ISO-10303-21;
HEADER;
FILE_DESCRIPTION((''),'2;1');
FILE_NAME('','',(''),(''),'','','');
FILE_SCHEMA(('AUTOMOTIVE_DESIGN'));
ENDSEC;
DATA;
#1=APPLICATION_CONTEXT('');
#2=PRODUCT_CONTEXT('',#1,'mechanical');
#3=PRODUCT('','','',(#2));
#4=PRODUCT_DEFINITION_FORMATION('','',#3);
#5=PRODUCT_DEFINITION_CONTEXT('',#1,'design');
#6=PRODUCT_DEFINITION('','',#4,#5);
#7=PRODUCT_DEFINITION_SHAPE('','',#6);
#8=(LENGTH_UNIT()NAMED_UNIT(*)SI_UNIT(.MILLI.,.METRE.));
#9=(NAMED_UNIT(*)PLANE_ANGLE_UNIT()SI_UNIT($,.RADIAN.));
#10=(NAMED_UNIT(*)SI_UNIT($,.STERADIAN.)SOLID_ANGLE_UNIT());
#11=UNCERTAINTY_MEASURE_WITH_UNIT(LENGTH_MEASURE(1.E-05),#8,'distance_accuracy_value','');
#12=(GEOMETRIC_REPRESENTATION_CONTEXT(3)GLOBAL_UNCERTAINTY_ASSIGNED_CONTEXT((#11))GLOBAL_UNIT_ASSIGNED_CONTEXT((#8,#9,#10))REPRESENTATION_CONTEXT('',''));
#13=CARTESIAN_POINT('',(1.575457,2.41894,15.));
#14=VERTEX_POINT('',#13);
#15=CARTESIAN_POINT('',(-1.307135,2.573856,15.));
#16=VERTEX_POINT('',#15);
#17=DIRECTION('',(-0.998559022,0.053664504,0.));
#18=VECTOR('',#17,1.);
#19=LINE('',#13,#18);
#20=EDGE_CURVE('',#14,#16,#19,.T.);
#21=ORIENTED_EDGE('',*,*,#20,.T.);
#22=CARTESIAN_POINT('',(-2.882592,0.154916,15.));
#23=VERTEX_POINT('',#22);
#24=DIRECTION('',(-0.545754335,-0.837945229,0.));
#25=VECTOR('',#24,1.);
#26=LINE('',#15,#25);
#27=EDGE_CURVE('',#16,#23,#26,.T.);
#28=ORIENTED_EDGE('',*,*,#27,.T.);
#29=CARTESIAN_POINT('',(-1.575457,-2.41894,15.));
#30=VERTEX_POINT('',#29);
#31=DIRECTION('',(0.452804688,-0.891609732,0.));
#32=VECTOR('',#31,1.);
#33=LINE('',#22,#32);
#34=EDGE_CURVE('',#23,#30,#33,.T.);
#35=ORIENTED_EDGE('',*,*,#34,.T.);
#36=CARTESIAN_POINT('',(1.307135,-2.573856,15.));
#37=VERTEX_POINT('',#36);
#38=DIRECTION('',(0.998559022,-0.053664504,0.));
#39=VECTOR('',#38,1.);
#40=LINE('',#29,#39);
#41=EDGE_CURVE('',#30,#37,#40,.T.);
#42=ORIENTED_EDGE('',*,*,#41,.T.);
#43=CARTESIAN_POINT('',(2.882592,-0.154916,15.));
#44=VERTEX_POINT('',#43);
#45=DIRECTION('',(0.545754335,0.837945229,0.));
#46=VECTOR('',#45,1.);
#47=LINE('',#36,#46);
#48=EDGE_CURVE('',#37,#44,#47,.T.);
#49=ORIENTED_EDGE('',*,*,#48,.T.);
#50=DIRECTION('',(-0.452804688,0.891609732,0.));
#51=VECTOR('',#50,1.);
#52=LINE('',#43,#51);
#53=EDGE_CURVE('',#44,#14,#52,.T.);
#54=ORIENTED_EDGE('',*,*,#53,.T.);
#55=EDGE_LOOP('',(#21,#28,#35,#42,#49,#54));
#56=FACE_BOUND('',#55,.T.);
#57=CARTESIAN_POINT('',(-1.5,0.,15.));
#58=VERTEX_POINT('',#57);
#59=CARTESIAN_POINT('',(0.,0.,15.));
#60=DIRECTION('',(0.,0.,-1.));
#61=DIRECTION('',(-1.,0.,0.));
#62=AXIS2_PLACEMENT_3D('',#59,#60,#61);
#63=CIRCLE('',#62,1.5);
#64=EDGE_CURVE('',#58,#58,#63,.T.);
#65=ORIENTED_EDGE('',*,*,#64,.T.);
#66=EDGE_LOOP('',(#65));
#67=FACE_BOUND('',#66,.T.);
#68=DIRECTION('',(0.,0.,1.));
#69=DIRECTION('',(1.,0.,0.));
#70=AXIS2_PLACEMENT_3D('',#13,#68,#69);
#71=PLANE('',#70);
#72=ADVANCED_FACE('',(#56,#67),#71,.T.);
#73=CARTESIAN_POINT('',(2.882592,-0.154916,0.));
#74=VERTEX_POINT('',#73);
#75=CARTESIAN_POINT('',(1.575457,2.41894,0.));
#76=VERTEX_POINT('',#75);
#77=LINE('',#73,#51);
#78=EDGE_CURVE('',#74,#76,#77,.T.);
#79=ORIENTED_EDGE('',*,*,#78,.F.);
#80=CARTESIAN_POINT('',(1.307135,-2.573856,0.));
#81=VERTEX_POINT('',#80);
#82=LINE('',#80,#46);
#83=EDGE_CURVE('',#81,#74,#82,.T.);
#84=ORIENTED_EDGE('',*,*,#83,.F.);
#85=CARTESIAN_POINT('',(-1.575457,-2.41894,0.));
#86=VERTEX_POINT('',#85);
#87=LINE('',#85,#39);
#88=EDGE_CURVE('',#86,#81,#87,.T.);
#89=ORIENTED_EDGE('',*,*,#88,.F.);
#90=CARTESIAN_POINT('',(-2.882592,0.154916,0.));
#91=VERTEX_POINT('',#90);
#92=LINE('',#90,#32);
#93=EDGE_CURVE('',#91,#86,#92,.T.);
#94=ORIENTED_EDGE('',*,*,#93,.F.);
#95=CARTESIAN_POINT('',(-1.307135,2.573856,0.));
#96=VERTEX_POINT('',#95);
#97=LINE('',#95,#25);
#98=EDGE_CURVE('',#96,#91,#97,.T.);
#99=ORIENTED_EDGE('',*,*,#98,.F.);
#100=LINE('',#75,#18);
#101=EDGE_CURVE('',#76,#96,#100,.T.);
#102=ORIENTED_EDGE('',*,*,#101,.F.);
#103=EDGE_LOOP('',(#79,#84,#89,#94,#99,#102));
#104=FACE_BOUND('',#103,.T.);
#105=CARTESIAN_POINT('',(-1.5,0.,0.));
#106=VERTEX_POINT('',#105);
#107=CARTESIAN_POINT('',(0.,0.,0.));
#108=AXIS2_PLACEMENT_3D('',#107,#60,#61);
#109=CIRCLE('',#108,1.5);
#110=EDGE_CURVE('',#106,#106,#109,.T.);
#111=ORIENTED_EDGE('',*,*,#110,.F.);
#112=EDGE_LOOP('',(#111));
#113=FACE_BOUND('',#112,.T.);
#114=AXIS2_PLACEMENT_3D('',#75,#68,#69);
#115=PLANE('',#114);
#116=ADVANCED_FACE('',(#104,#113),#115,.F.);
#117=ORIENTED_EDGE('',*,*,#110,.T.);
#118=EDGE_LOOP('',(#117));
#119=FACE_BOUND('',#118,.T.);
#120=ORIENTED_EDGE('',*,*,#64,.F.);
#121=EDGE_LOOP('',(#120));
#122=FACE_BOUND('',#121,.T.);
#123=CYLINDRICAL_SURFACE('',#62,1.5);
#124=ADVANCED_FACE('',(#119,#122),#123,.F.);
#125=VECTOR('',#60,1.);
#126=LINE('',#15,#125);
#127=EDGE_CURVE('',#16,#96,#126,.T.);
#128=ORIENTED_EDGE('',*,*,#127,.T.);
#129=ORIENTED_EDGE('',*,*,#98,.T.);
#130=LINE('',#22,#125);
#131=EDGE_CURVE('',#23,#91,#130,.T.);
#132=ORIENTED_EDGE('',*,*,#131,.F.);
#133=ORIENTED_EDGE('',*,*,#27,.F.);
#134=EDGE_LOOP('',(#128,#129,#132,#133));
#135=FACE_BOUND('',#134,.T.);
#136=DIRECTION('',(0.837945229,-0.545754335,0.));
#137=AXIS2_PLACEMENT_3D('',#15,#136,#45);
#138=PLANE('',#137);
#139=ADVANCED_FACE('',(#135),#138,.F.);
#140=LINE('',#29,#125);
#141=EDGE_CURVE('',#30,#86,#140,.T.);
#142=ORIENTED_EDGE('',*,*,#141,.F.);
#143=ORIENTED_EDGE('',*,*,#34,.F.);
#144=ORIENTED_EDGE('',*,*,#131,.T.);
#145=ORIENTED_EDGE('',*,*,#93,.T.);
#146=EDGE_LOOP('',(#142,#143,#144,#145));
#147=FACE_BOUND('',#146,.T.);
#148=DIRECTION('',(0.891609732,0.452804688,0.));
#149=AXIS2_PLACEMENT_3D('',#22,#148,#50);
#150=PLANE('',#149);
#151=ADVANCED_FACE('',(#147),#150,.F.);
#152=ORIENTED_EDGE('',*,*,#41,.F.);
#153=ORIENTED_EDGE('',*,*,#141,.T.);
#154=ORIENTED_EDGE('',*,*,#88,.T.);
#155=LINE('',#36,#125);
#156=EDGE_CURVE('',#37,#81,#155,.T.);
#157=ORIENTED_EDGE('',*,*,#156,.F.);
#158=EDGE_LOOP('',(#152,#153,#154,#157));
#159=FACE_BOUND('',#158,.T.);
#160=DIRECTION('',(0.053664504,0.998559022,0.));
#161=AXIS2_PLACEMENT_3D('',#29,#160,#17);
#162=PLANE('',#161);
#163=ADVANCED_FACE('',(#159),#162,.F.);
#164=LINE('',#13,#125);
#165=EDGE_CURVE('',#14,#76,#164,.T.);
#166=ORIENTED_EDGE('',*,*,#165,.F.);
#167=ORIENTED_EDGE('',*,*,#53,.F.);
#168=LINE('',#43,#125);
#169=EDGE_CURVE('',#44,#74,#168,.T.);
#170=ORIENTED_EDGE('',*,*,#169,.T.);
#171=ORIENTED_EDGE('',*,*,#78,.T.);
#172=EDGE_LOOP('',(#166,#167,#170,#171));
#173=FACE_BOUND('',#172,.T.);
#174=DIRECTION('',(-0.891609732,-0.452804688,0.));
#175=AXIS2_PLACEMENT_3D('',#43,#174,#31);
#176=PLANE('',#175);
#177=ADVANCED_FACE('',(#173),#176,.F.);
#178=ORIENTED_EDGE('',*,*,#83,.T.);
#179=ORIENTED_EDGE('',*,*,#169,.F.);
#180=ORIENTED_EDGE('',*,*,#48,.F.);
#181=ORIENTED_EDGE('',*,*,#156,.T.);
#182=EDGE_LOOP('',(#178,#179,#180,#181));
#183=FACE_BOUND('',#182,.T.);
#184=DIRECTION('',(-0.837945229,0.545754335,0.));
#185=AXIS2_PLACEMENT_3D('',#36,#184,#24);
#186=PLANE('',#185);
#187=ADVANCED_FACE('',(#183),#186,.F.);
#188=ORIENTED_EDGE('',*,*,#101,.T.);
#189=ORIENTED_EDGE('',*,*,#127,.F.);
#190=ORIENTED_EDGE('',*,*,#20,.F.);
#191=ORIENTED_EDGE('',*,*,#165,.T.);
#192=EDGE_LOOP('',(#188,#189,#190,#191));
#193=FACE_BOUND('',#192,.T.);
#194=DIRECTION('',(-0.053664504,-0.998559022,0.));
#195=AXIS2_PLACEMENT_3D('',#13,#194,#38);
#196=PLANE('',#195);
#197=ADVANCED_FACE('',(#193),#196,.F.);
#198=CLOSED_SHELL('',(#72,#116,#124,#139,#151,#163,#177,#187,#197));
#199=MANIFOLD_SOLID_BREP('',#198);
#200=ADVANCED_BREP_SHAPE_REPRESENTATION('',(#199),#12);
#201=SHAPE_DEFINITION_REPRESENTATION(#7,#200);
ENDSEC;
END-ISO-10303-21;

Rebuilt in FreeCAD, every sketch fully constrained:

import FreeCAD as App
import Part
import Sketcher
from FreeCAD import Vector

doc = App.newDocument("Part")
params = doc.addObject("Spreadsheet::Sheet", "Params")
for row, (alias, value) in enumerate([
    ("pad1_length", "15 mm"),
    ("sketch2_diameter", "3 mm"),
], start=1):
    params.set(f"A{row}", alias)
    params.set(f"B{row}", "=" + value)
    params.setAlias(f"B{row}", alias)

body = doc.addObject("PartDesign::Body", "Body")

sketch1 = body.newObject("Sketcher::SketchObject", "Sketch")
sketch1.AttachmentSupport = (doc.getObject("XY_Plane"), [""])
sketch1.MapMode = "FlatFace"
sketch1.addGeometry(Part.LineSegment(Vector(1.575457, 2.41894, 0), Vector(-1.307135, 2.573856, 0)), False)
sketch1.addGeometry(Part.LineSegment(Vector(-1.307135, 2.573856, 0), Vector(-2.882592, 0.154916, 0)), False)
sketch1.addGeometry(Part.LineSegment(Vector(-2.882592, 0.154916, 0), Vector(-1.575457, -2.41894, 0)), False)
sketch1.addGeometry(Part.LineSegment(Vector(-1.575457, -2.41894, 0), Vector(1.307135, -2.573856, 0)), False)
sketch1.addGeometry(Part.LineSegment(Vector(1.307135, -2.573856, 0), Vector(2.882592, -0.154916, 0)), False)
sketch1.addGeometry(Part.LineSegment(Vector(2.882592, -0.154916, 0), Vector(1.575457, 2.41894, 0)), False)
sketch1.addConstraint(Sketcher.Constraint("Coincident", 0, 2, 1, 1))
sketch1.addConstraint(Sketcher.Constraint("Coincident", 1, 2, 2, 1))
sketch1.addConstraint(Sketcher.Constraint("Coincident", 2, 2, 3, 1))
sketch1.addConstraint(Sketcher.Constraint("Coincident", 3, 2, 4, 1))
sketch1.addConstraint(Sketcher.Constraint("Coincident", 4, 2, 5, 1))
sketch1.addConstraint(Sketcher.Constraint("Coincident", 5, 2, 0, 1))
sketch1.addConstraint(Sketcher.Constraint("Symmetric", 0, 2, 3, 2, -1, 1))
sketch1.addConstraint(Sketcher.Constraint("Symmetric", 1, 2, 4, 2, -1, 1))
sketch1.addConstraint(Sketcher.Constraint("Symmetric", 2, 2, 5, 2, -1, 1))
sketch1.addConstraint(Sketcher.Constraint("Equal", 0, 1))
sketch1.addConstraint(Sketcher.Constraint("Equal", 1, 2))
sketch1.addConstraint(Sketcher.Constraint("Distance", 0, 2.886751))
sketch1.addConstraint(Sketcher.Constraint("DistanceX", 1, 2, -1, 1, 2.882592))
sketch1.addConstraint(Sketcher.Constraint("DistanceY", 2, 2, -1, 1, 2.41894))
sketch1.addConstraint(Sketcher.Constraint("DistanceY", 1, 2, 0, 2, 2.41894))
pad1 = body.newObject("PartDesign::Pad", "Pad")
pad1.Profile = sketch1
pad1.setExpression("Length", "Params.pad1_length")

sketch2 = body.newObject("Sketcher::SketchObject", "Sketch001")
sketch2.AttachmentSupport = (doc.getObject("XY_Plane"), [""])
sketch2.MapMode = "FlatFace"
sketch2.addGeometry(Part.Circle(Vector(0, 0, 0), Vector(0, 0, 1), 1.5), False)
sketch2.addConstraint(Sketcher.Constraint("Coincident", 0, 3, -1, 1))
sketch2.addConstraint(Sketcher.Constraint("Diameter", 0, 3.0))
sketch2.setExpression("Constraints[1]", "Params.sketch2_diameter")
pocket1 = body.newObject("PartDesign::Pocket", "Pocket")
pocket1.Profile = sketch2
pocket1.Type = "ThroughAll"
pocket1.Reversed = True

doc.recompute()
